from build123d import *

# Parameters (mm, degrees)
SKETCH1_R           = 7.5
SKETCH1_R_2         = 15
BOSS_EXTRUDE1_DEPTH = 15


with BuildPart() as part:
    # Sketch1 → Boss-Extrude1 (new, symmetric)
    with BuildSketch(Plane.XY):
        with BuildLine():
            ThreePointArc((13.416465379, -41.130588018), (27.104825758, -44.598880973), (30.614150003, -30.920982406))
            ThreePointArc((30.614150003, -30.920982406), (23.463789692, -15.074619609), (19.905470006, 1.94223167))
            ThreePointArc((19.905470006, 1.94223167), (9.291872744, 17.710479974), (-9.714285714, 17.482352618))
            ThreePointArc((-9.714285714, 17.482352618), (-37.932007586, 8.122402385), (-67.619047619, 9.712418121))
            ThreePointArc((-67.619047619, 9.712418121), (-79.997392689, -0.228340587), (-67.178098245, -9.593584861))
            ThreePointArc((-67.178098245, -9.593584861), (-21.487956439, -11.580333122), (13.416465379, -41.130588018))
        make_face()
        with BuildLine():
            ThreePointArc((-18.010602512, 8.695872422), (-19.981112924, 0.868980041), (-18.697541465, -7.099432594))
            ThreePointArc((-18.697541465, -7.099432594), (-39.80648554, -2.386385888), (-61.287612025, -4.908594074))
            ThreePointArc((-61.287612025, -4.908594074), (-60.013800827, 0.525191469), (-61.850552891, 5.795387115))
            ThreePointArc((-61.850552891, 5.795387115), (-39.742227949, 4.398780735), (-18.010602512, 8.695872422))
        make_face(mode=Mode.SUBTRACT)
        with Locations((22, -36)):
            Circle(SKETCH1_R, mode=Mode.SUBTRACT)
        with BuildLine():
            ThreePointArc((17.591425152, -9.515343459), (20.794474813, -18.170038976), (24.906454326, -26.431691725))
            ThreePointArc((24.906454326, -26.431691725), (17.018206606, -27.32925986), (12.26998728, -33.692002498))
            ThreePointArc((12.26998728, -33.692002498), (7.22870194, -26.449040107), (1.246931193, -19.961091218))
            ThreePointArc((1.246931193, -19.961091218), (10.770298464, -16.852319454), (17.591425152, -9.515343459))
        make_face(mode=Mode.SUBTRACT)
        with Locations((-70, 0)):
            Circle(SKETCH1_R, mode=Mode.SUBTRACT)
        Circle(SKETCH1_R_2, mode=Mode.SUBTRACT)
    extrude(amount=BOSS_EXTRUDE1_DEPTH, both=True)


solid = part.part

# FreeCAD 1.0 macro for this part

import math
import FreeCAD as App
import Part
import Sketcher

doc = App.newDocument("Part")
body = doc.addObject("PartDesign::Body", "Body")

# Sketch on XY plane
sketch1 = body.newObject("Sketcher::SketchObject", "Sketch")
sketch1.AttachmentSupport = (doc.getObject("XY_Plane"), [""])
sketch1.MapMode = "FlatFace"
sketch1.addGeometry(Part.ArcOfCircle(Part.Circle(App.Vector(22, -36, 0), App.Vector(0, 0, 1), 10), math.radians(-149), math.radians(31)), False)
sketch1.addGeometry(Part.ArcOfCircle(Part.Circle(App.Vector(100, 10, 0), App.Vector(0, 0, 1), 80), math.radians(-174), math.radians(-149)), False)
sketch1.addGeometry(Part.ArcOfCircle(Part.Circle(App.Vector(0, 0, 0), App.Vector(0, 0, 1), 20), math.radians(6), math.radians(119)), False)
sketch1.addGeometry(Part.ArcOfCircle(Part.Circle(App.Vector(-49, 87, 0), App.Vector(0, 0, 1), 80), math.radians(-104), math.radians(-61)), False)
sketch1.addGeometry(Part.ArcOfCircle(Part.Circle(App.Vector(-70, 0, 0), App.Vector(0, 0, 1), 10), math.radians(76), math.radians(286)), False)
sketch1.addGeometry(Part.ArcOfCircle(Part.Circle(App.Vector(-47, -77, 0), App.Vector(0, 0, 1), 71), math.radians(31), math.radians(106)), False)
sketch1.addGeometry(Part.Circle(App.Vector(22, -36, 0), App.Vector(0, 0, 1), 8), False)
sketch1.addGeometry(Part.ArcOfCircle(Part.Circle(App.Vector(0, 0, 0), App.Vector(0, 0, 1), 20), math.radians(-86), math.radians(-28)), False)
sketch1.addGeometry(Part.ArcOfCircle(Part.Circle(App.Vector(100, 16, 0), App.Vector(0, 0, 1), 86), math.radians(-162.77), math.radians(-150.46)), False)
sketch1.addGeometry(Part.ArcOfCircle(Part.Circle(App.Vector(22, -36, 0), App.Vector(0, 0, 1), 10), math.radians(73), math.radians(167)), False)
sketch1.addGeometry(Part.ArcOfCircle(Part.Circle(App.Vector(-43, -67, 0), App.Vector(0, 0, 1), 65), math.radians(30.92), math.radians(46.59)), False)
sketch1.addGeometry(Part.Circle(App.Vector(-70, 0, 0), App.Vector(0, 0, 1), 8), False)
sketch1.addGeometry(Part.ArcOfCircle(Part.Circle(App.Vector(-45, 90, 0), App.Vector(0, 0, 1), 86), math.radians(-101), math.radians(-71)), False)
sketch1.addGeometry(Part.ArcOfCircle(Part.Circle(App.Vector(0, 0, 0), App.Vector(0, 0, 1), 20), math.radians(154), math.radians(201)), False)
sketch1.addGeometry(Part.ArcOfCircle(Part.Circle(App.Vector(-43, -67, 0), App.Vector(0, 0, 1), 65), math.radians(68), math.radians(106)), False)
sketch1.addGeometry(Part.ArcOfCircle(Part.Circle(App.Vector(-70, 0, 0), App.Vector(0, 0, 1), 10), math.radians(-29), math.radians(35)), False)
sketch1.addGeometry(Part.Circle(App.Vector(0, 0, 0), App.Vector(0, 0, 1), 15), False)
sketch1.addConstraint(Sketcher.Constraint("Tangent", 0, 2, 1, 2))
sketch1.addConstraint(Sketcher.Constraint("Tangent", 1, 1, 2, 1))
sketch1.addConstraint(Sketcher.Constraint("Tangent", 2, 2, 3, 2))
sketch1.addConstraint(Sketcher.Constraint("Tangent", 3, 1, 4, 1))
sketch1.addConstraint(Sketcher.Constraint("Tangent", 4, 2, 5, 2))
sketch1.addConstraint(Sketcher.Constraint("Tangent", 5, 1, 0, 1))
sketch1.addConstraint(Sketcher.Constraint("Coincident", 7, 2, 8, 1))
sketch1.addConstraint(Sketcher.Constraint("Coincident", 8, 2, 9, 1))
sketch1.addConstraint(Sketcher.Constraint("Coincident", 9, 2, 10, 1))
sketch1.addConstraint(Sketcher.Constraint("Coincident", 10, 2, 7, 1))
sketch1.addConstraint(Sketcher.Constraint("Coincident", 12, 2, 13, 1))
sketch1.addConstraint(Sketcher.Constraint("Coincident", 13, 2, 14, 1))
sketch1.addConstraint(Sketcher.Constraint("Coincident", 14, 2, 15, 1))
sketch1.addConstraint(Sketcher.Constraint("Coincident", 15, 2, 12, 1))
sketch1.addConstraint(Sketcher.Constraint("Coincident", 2, 3, -1, 1))
sketch1.addConstraint(Sketcher.Constraint("Coincident", 7, 3, -1, 1))
sketch1.addConstraint(Sketcher.Constraint("Coincident", 13, 3, -1, 1))
sketch1.addConstraint(Sketcher.Constraint("Coincident", 16, 3, -1, 1))
sketch1.addConstraint(Sketcher.Constraint("Coincident", 6, 3, 0, 3))
sketch1.addConstraint(Sketcher.Constraint("Coincident", 9, 3, 0, 3))
sketch1.addConstraint(Sketcher.Constraint("Coincident", 11, 3, 4, 3))
sketch1.addConstraint(Sketcher.Constraint("Coincident", 14, 3, 10, 3))
sketch1.addConstraint(Sketcher.Constraint("Coincident", 15, 3, 4, 3))
sketch1.addConstraint(Sketcher.Constraint("Equal", 1, 3))
sketch1.addConstraint(Sketcher.Constraint("Equal", 0, 4))
sketch1.addConstraint(Sketcher.Constraint("Equal", 2, 7))
sketch1.addConstraint(Sketcher.Constraint("Equal", 4, 9))
sketch1.addConstraint(Sketcher.Constraint("Equal", 6, 11))
sketch1.addConstraint(Sketcher.Constraint("Equal", 8, 12))
sketch1.addConstraint(Sketcher.Constraint("Equal", 7, 13))
sketch1.addConstraint(Sketcher.Constraint("Equal", 10, 14))
sketch1.addConstraint(Sketcher.Constraint("Equal", 9, 15))
sketch1.addConstraint(Sketcher.Constraint("PointOnObject", 4, 3, -1))
sketch1.addConstraint(Sketcher.Constraint("Diameter", 6, 15.0))
sketch1.addConstraint(Sketcher.Constraint("Diameter", 16, 30.0))
sketch1.addConstraint(Sketcher.Constraint("Radius", 0, 10.0))
sketch1.addConstraint(Sketcher.Constraint("Radius", 1, 80.0))
sketch1.addConstraint(Sketcher.Constraint("Radius", 2, 20.0))
sketch1.addConstraint(Sketcher.Constraint("Radius", 8, 86.0))
sketch1.addConstraint(Sketcher.Constraint("DistanceX", -1, 1, 0, 3, 22.0))
sketch1.addConstraint(Sketcher.Constraint("DistanceY", 0, 3, -1, 1, 36.0))
sketch1.addConstraint(Sketcher.Constraint("DistanceX", 4, 3, -1, 1, 70.0))
sketch1.addConstraint(Sketcher.Constraint("Radius", 5, 70.663288))
sketch1.addConstraint(Sketcher.Constraint("Radius", 10, 64.570308))
sketch1.addConstraint(Sketcher.Constraint("DistanceY", 8, 2, -1, 1, 26.431692))
sketch1.addConstraint(Sketcher.Constraint("DistanceX", -1, 1, 10, 2, 1.246931))
sketch1.addConstraint(Sketcher.Constraint("DistanceX", 13, 2, -1, 1, 18.697541))
sketch1.addConstraint(Sketcher.Constraint("DistanceY", 1, 3, 8, 3, 6.252578))
sketch1.addConstraint(Sketcher.Constraint("DistanceY", 3, 3, 12, 3, 2.799412))
sketch1.addConstraint(Sketcher.Constraint("DistanceY", 12, 2, 2, 2, 8.78648))
pad1 = body.newObject("PartDesign::Pad", "Pad")
pad1.Profile = sketch1
pad1.Length = 30
pad1.Midplane = True

doc.recompute()
